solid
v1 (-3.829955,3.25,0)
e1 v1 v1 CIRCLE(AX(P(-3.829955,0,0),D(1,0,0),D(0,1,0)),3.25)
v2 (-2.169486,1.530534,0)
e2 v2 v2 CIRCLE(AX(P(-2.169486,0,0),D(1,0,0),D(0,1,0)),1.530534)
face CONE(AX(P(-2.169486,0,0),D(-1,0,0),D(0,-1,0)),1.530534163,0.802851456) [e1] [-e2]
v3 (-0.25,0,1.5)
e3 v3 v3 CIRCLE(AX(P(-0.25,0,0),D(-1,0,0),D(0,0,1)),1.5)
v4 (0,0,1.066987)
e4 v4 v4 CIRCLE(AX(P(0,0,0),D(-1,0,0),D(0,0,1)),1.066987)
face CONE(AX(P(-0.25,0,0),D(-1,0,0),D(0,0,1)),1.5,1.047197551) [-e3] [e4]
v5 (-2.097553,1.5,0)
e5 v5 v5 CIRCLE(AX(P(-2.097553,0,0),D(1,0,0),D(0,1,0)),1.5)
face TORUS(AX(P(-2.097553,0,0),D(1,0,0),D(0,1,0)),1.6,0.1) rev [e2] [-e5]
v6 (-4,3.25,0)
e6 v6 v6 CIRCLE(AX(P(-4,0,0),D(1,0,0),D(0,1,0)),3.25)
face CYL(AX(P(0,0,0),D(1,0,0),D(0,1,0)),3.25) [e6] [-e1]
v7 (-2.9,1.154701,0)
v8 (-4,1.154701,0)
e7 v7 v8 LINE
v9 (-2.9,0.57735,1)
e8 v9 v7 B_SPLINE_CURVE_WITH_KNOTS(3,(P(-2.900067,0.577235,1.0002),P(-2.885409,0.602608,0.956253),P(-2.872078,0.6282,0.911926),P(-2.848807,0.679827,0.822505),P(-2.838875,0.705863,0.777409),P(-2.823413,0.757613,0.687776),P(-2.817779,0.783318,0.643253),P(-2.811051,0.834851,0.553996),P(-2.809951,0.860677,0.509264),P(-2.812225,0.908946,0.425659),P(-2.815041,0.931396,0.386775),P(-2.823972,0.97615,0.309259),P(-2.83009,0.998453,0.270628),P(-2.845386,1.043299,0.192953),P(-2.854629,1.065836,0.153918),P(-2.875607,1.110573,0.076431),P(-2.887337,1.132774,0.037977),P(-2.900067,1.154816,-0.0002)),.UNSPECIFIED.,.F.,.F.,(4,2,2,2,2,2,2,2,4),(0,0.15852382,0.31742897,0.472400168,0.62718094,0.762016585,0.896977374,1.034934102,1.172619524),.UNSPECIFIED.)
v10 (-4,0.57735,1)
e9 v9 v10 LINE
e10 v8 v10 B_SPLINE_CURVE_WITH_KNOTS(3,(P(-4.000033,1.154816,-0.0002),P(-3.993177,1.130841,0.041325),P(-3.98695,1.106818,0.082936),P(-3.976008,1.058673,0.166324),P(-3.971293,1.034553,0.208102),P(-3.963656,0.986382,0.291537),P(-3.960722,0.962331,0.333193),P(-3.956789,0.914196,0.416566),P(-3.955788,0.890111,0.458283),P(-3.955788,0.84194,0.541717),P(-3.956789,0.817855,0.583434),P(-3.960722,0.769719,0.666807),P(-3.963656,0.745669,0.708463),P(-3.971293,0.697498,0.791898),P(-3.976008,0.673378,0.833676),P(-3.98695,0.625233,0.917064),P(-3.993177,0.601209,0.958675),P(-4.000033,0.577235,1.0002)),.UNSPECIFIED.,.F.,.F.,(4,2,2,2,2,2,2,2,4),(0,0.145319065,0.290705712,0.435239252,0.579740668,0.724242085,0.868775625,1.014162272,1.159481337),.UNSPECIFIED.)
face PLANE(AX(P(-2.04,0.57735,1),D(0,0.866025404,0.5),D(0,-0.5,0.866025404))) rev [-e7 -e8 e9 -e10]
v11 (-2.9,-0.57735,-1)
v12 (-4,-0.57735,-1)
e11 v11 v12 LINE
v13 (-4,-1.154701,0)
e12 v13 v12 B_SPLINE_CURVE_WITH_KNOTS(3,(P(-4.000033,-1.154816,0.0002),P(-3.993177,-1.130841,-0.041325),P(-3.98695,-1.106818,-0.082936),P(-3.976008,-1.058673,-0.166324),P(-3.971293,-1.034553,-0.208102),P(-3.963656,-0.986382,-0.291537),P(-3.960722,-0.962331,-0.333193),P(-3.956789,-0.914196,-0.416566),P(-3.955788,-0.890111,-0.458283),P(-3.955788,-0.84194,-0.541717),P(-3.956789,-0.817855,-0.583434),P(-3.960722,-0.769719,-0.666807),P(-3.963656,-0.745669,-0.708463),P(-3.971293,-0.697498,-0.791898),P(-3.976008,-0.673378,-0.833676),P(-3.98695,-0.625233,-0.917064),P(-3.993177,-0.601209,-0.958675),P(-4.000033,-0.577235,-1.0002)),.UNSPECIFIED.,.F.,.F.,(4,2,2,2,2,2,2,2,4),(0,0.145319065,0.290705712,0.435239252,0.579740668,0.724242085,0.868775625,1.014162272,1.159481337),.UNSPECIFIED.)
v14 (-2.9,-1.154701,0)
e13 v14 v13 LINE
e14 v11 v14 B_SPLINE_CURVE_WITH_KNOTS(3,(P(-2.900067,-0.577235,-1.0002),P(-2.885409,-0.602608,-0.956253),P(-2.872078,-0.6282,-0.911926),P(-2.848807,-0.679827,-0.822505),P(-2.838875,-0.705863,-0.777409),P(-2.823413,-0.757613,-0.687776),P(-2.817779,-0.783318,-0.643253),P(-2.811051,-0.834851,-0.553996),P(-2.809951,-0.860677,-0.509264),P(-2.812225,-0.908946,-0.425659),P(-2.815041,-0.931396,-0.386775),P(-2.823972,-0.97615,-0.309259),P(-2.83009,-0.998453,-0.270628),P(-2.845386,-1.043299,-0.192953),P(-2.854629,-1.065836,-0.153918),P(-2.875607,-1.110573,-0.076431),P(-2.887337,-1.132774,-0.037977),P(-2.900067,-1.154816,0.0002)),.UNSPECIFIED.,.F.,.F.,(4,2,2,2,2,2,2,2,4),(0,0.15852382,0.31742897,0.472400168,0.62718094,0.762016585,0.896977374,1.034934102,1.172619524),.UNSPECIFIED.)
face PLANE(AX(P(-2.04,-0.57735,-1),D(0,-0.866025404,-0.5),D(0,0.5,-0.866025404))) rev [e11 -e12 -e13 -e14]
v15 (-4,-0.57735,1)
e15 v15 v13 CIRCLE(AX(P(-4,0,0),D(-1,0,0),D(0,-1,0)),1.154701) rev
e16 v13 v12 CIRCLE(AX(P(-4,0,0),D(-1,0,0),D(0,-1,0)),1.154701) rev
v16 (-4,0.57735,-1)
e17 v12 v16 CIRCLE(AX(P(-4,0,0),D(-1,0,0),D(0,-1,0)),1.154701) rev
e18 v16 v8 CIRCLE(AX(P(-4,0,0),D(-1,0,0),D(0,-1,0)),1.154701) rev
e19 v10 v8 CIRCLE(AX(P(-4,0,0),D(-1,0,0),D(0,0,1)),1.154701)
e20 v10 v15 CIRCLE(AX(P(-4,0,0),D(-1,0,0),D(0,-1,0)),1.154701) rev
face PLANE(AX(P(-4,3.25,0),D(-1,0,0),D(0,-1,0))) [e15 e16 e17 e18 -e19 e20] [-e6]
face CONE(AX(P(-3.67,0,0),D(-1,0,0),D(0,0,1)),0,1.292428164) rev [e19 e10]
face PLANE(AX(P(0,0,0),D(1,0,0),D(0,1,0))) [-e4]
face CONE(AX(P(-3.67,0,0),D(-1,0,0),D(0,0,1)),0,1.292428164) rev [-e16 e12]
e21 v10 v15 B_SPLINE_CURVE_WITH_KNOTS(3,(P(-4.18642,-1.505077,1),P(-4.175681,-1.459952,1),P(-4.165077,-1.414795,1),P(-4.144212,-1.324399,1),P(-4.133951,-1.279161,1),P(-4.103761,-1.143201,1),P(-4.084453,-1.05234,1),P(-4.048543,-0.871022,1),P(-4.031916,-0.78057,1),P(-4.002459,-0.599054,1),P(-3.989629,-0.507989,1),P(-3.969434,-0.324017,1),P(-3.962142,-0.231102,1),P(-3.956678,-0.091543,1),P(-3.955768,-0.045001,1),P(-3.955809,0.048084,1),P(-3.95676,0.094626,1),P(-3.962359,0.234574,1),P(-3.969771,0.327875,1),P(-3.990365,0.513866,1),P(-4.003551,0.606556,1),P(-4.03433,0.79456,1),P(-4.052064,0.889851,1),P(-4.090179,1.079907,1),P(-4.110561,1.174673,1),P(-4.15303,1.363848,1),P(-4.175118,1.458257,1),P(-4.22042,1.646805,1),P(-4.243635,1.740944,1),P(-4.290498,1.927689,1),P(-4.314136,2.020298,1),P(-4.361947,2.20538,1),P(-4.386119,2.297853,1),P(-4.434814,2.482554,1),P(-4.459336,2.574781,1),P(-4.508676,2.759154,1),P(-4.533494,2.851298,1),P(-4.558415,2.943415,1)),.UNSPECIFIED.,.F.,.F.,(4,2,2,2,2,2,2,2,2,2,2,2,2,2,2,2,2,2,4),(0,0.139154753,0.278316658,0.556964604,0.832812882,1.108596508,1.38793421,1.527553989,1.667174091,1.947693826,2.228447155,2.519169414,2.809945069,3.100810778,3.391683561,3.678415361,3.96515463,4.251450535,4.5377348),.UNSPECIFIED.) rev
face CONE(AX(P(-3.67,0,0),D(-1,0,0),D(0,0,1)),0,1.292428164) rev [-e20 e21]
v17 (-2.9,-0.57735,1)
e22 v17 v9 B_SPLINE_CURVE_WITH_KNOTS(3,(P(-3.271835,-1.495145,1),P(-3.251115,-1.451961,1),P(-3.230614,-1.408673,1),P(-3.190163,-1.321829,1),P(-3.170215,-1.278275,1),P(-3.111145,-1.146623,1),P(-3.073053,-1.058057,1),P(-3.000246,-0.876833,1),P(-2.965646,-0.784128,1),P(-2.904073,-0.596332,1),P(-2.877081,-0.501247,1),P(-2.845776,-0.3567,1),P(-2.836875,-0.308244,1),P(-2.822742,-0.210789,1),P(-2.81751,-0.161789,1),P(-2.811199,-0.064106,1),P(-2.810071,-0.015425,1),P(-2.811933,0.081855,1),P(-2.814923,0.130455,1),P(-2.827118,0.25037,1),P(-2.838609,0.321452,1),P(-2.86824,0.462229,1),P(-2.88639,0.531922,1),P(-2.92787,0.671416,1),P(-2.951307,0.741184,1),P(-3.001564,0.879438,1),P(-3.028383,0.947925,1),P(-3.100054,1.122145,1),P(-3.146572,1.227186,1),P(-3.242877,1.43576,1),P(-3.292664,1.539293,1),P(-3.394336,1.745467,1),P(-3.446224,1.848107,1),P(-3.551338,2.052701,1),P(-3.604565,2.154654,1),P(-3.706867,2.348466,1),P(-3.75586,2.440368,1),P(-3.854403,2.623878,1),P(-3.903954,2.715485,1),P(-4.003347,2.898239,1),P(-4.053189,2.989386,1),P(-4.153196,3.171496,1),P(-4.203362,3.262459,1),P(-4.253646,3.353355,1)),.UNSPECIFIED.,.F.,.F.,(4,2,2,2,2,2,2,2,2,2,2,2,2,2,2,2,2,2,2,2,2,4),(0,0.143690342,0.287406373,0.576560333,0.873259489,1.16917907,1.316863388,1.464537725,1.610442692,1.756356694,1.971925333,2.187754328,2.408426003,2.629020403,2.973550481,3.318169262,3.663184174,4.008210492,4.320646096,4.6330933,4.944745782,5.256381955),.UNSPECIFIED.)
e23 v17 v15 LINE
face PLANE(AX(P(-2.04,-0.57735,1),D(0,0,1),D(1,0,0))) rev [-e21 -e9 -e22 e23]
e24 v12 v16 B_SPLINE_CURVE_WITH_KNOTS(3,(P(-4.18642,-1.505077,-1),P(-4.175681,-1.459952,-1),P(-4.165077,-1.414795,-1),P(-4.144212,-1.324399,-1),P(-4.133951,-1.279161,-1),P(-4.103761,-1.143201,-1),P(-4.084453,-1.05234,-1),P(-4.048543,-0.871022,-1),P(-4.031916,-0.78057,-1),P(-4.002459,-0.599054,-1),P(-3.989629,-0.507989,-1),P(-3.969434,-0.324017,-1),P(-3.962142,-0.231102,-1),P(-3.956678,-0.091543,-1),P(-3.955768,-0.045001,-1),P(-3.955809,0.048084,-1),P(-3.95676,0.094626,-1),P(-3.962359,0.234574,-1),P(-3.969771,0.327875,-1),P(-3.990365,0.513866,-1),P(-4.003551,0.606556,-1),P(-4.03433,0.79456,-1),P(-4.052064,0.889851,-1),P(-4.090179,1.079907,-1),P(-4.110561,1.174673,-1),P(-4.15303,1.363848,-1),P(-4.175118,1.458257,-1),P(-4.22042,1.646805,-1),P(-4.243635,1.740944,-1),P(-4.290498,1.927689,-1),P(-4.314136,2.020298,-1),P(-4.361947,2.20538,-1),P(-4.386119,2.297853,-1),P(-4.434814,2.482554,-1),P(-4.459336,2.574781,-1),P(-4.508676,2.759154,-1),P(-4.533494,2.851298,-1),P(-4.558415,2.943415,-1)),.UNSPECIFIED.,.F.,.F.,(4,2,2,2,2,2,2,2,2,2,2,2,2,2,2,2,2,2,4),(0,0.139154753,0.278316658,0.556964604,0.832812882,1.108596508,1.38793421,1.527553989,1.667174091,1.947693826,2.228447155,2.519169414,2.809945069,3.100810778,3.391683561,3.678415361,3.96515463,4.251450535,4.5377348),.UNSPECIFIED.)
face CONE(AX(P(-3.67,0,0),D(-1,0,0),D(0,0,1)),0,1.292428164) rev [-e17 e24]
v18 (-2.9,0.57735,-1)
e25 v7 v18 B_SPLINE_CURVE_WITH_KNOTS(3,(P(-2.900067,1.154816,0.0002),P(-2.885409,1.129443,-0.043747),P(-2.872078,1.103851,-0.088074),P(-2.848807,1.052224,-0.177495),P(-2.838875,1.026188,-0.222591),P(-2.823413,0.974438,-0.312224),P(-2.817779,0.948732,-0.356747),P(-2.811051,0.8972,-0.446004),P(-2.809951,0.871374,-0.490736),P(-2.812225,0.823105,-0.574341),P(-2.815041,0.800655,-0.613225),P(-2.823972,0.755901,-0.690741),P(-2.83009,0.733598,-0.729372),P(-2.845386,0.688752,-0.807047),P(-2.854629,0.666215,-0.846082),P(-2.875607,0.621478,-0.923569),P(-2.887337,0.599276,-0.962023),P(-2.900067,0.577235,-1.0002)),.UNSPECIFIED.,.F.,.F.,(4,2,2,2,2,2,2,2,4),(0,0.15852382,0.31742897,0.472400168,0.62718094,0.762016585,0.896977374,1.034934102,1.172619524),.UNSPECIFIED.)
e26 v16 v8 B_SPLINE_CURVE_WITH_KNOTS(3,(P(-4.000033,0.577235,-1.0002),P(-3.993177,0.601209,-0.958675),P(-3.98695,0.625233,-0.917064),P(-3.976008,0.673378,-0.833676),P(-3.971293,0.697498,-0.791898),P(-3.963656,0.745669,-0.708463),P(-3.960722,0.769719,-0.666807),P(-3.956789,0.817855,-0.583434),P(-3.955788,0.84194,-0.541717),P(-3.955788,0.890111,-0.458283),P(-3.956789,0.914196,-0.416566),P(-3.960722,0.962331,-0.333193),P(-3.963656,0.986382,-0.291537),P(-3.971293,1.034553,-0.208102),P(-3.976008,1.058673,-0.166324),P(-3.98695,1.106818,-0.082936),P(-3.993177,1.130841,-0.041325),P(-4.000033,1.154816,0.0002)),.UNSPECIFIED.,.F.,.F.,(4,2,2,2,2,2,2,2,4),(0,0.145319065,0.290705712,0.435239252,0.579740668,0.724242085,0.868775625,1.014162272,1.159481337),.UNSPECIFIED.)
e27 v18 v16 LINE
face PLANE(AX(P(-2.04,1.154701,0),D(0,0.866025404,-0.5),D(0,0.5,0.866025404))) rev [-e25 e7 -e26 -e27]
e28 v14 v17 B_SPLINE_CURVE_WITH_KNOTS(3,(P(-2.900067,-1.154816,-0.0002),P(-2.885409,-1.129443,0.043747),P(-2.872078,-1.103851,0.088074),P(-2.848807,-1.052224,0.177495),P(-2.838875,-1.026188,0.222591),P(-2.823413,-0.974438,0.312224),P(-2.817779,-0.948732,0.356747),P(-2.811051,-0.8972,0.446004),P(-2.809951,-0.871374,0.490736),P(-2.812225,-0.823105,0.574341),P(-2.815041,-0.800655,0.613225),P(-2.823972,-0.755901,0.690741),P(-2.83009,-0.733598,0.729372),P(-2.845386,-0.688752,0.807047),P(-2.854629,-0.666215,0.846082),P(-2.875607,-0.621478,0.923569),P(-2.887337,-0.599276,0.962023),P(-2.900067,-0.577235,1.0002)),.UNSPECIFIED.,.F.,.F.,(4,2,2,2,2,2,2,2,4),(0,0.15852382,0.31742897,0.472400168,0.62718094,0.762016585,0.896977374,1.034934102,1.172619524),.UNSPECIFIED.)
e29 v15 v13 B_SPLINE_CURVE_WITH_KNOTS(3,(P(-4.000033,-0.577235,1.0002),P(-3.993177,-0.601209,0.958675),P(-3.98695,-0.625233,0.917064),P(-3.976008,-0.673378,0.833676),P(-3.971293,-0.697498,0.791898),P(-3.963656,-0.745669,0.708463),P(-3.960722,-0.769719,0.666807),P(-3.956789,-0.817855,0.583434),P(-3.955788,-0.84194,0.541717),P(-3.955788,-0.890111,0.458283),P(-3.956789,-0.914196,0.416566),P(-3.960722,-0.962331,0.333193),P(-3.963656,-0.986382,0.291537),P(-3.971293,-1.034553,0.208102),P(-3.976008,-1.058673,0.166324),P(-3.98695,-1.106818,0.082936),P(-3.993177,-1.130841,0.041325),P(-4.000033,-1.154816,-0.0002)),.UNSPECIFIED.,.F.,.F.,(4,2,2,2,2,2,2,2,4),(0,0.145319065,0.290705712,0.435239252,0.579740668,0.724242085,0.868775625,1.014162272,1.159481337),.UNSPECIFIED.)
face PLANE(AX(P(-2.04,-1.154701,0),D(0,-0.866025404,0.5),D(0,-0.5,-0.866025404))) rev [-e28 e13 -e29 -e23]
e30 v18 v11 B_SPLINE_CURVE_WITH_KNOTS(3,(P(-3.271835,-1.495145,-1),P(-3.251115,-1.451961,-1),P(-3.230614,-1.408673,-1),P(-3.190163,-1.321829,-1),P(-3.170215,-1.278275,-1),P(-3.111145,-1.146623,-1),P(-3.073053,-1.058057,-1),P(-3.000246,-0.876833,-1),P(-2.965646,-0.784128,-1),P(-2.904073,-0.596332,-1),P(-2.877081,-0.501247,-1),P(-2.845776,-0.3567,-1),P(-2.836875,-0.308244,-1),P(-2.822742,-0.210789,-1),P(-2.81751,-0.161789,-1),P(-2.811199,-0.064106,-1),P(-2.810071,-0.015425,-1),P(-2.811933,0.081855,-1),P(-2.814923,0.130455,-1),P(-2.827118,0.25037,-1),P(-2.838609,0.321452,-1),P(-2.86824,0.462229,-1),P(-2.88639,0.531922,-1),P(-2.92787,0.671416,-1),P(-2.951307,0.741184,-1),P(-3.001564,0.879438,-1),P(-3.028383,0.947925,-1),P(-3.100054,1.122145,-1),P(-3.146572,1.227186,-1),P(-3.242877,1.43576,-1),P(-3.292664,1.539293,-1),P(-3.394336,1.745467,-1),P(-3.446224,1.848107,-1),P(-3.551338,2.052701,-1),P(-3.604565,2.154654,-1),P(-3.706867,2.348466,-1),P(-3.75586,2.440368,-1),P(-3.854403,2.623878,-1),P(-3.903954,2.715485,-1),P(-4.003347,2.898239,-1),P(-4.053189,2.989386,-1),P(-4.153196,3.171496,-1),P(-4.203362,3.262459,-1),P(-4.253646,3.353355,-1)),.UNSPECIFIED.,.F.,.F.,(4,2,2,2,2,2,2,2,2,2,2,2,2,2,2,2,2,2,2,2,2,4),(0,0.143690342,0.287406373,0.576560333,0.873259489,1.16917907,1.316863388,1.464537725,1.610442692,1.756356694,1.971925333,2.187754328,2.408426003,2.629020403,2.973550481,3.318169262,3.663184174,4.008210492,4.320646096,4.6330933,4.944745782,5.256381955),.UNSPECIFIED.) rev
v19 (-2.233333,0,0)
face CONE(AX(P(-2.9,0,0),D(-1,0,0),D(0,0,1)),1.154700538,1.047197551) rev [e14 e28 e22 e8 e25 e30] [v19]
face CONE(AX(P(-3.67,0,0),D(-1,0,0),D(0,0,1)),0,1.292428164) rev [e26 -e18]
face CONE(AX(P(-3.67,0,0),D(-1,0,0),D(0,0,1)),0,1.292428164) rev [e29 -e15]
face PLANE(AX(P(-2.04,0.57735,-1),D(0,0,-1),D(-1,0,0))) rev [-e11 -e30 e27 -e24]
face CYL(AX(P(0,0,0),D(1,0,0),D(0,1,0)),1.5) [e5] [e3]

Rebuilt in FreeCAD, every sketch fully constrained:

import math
import FreeCAD as App
import Part
import Sketcher

V = App.Vector
Q = App.Units.Quantity

doc = App.newDocument("Part")
body = doc.addObject("PartDesign::Body", "Body")

sketch1 = body.newObject("Sketcher::SketchObject", "Sketch")
sketch1.AttachmentSupport = (doc.getObject("XY_Plane"), [""])
sketch1.MapMode = "FlatFace"
sketch1.addGeometry(Part.LineSegment(V(0, 1.5, 0), V(-2.097553, 1.5, 0)), False)
sketch1.addGeometry(Part.ArcOfCircle(Part.Circle(V(-2.097553, 1.6, 0), V(0, 0, 1), 0.1), math.radians(-135.999999), math.radians(-90.000001)), False)
sketch1.addGeometry(Part.LineSegment(V(-2.169486, 1.530534, 0), V(-3.829955, 3.25, 0)), False)
sketch1.addGeometry(Part.LineSegment(V(-3.829955, 3.25, 0), V(-4, 3.25, 0)), False)
sketch1.addGeometry(Part.LineSegment(V(-4, 3.25, 0), V(-4, 0, 0)), False)
sketch1.addGeometry(Part.LineSegment(V(-4, 0, 0), V(0, 0, 0)), False)
sketch1.addGeometry(Part.LineSegment(V(0, 0, 0), V(0, 1.5, 0)), False)
sketch1.addConstraint(Sketcher.Constraint("Tangent", 0, 2, 1, 2))
sketch1.addConstraint(Sketcher.Constraint("Tangent", 1, 1, 2, 1))
sketch1.addConstraint(Sketcher.Constraint("Coincident", 2, 2, 3, 1))
sketch1.addConstraint(Sketcher.Constraint("Coincident", 3, 2, 4, 1))
sketch1.addConstraint(Sketcher.Constraint("Coincident", 4, 2, 5, 1))
sketch1.addConstraint(Sketcher.Constraint("Coincident", 5, 2, 6, 1))
sketch1.addConstraint(Sketcher.Constraint("Coincident", 6, 2, 0, 1))
sketch1.addConstraint(Sketcher.Constraint("Horizontal", 0))
sketch1.addConstraint(Sketcher.Constraint("Horizontal", 3))
sketch1.addConstraint(Sketcher.Constraint("Vertical", 4))
sketch1.addConstraint(Sketcher.Constraint("Horizontal", 5))
sketch1.addConstraint(Sketcher.Constraint("Vertical", 6))
sketch1.addConstraint(Sketcher.Constraint("Coincident", 5, 2, -1, 1))
sketch1.addConstraint(Sketcher.Constraint("Radius", 1, 0.1))
sketch1.addConstraint(Sketcher.Constraint("DistanceX", 5, 1, 5, 2, 4.0))
sketch1.addConstraint(Sketcher.Constraint("Angle", 2, Q("134 deg")))
sketch1.addConstraint(Sketcher.Constraint("DistanceY", 6, 1, 6, 2, 1.5))
sketch1.addConstraint(Sketcher.Constraint("DistanceY", 4, 2, 4, 1, 3.25))
sketch1.addConstraint(Sketcher.Constraint("DistanceX", 0, 2, 0, 1, 2.097553))
revolution = body.newObject("PartDesign::Revolution", "Revolution")
revolution.Profile = sketch1
revolution.ReferenceAxis = (sketch1, ["H_Axis"])
revolution.Angle = 360

sketch2 = body.newObject("Sketcher::SketchObject", "Sketch001")
sketch2.AttachmentSupport = (doc.getObject("YZ_Plane"), [""])
sketch2.MapMode = "FlatFace"
sketch2.AttachmentOffset = App.Placement(V(0, 0, -4), App.Rotation())
sketch2.addGeometry(Part.LineSegment(V(1.154701, 0, 0), V(0.57735, -1, 0)), False)
sketch2.addGeometry(Part.LineSegment(V(0.57735, -1, 0), V(-0.57735, -1, 0)), False)
sketch2.addGeometry(Part.LineSegment(V(-0.57735, -1, 0), V(-1.154701, 0, 0)), False)
sketch2.addGeometry(Part.LineSegment(V(-1.154701, 0, 0), V(-0.57735, 1, 0)), False)
sketch2.addGeometry(Part.LineSegment(V(-0.57735, 1, 0), V(0.57735, 1, 0)), False)
sketch2.addGeometry(Part.LineSegment(V(0.57735, 1, 0), V(1.154701, 0, 0)), False)
sketch2.addConstraint(Sketcher.Constraint("Coincident", 0, 2, 1, 1))
sketch2.addConstraint(Sketcher.Constraint("Coincident", 1, 2, 2, 1))
sketch2.addConstraint(Sketcher.Constraint("Coincident", 2, 2, 3, 1))
sketch2.addConstraint(Sketcher.Constraint("Coincident", 3, 2, 4, 1))
sketch2.addConstraint(Sketcher.Constraint("Coincident", 4, 2, 5, 1))
sketch2.addConstraint(Sketcher.Constraint("Coincident", 5, 2, 0, 1))
sketch2.addConstraint(Sketcher.Constraint("Horizontal", 1))
sketch2.addConstraint(Sketcher.Constraint("Horizontal", 4))
sketch2.addConstraint(Sketcher.Constraint("Symmetric", 0, 2, 3, 2, -1, 1))
sketch2.addConstraint(Sketcher.Constraint("Symmetric", 2, 2, 5, 2, -1, 1))
sketch2.addConstraint(Sketcher.Constraint("PointOnObject", 2, 2, -1))
sketch2.addConstraint(Sketcher.Constraint("Parallel", 2, 5))
sketch2.addConstraint(Sketcher.Constraint("Vertical", 1, 2, 3, 2))
sketch2.addConstraint(Sketcher.Constraint("Angle", 0, Q("-120 deg")))
sketch2.addConstraint(Sketcher.Constraint("DistanceY", 0, 2, -1, 1, 1.0))
sketch2.addConstraint(Sketcher.Constraint("DistanceX", 1, 2, 1, 1, 1.154701))
pocket1 = body.newObject("PartDesign::Pocket", "Pocket")
pocket1.Profile = sketch2
pocket1.Length = 1.96
pocket1.Reversed = True

sketch3 = body.newObject("Sketcher::SketchObject", "Sketch002")
sketch3.AttachmentSupport = (doc.getObject("XY_Plane"), [""])
sketch3.MapMode = "FlatFace"
sketch3.addGeometry(Part.LineSegment(V(-2.9, 1.154701, 0), V(-2.233333, 0, 0)), False)
sketch3.addGeometry(Part.LineSegment(V(-2.233333, 0, 0), V(-1.74, 0, 0)), False)
sketch3.addGeometry(Part.LineSegment(V(-1.74, 0, 0), V(-1.74, 1.154701, 0)), False)
sketch3.addGeometry(Part.LineSegment(V(-1.74, 1.154701, 0), V(-2.9, 1.154701, 0)), False)
sketch3.addConstraint(Sketcher.Constraint("Coincident", 0, 2, 1, 1))
sketch3.addConstraint(Sketcher.Constraint("Coincident", 1, 2, 2, 1))
sketch3.addConstraint(Sketcher.Constraint("Coincident", 2, 2, 3, 1))
sketch3.addConstraint(Sketcher.Constraint("Coincident", 3, 2, 0, 1))
sketch3.addConstraint(Sketcher.Constraint("Horizontal", 1))
sketch3.addConstraint(Sketcher.Constraint("Vertical", 2))
sketch3.addConstraint(Sketcher.Constraint("Horizontal", 3))
sketch3.addConstraint(Sketcher.Constraint("PointOnObject", 0, 2, -1))
sketch3.addConstraint(Sketcher.Constraint("Angle", 0, Q("-60 deg")))
sketch3.addConstraint(Sketcher.Constraint("DistanceX", 3, 2, 3, 1, 1.16))
sketch3.addConstraint(Sketcher.Constraint("DistanceX", 3, 2, -1, 1, 2.9))
sketch3.addConstraint(Sketcher.Constraint("DistanceY", 2, 1, 2, 2, 1.154701))
revolution2 = body.newObject("PartDesign::Revolution", "Revolution001")
revolution2.Profile = sketch3
revolution2.ReferenceAxis = (sketch3, ["H_Axis"])
revolution2.Angle = 360

sketch4 = body.newObject("Sketcher::SketchObject", "Sketch003")
sketch4.AttachmentSupport = (doc.getObject("XY_Plane"), [""])
sketch4.MapMode = "FlatFace"
sketch4.addGeometry(Part.LineSegment(V(-4, 1.154701, 0), V(-4, 0, 0)), False)
sketch4.addGeometry(Part.LineSegment(V(-4, 0, 0), V(-3.67, 0, 0)), False)
sketch4.addGeometry(Part.LineSegment(V(-3.67, 0, 0), V(-4, 1.154701, 0)), False)
sketch4.addConstraint(Sketcher.Constraint("Coincident", 0, 2, 1, 1))
sketch4.addConstraint(Sketcher.Constraint("Coincident", 1, 2, 2, 1))
sketch4.addConstraint(Sketcher.Constraint("Coincident", 2, 2, 0, 1))
sketch4.addConstraint(Sketcher.Constraint("Vertical", 0))
sketch4.addConstraint(Sketcher.Constraint("Horizontal", 1))
sketch4.addConstraint(Sketcher.Constraint("PointOnObject", 0, 2, -1))
sketch4.addConstraint(Sketcher.Constraint("DistanceX", 0, 2, -1, 1, 4.0))
sketch4.addConstraint(Sketcher.Constraint("DistanceX", 1, 1, 1, 2, 0.33))
sketch4.addConstraint(Sketcher.Constraint("DistanceY", 0, 2, 0, 1, 1.154701))
groove = body.newObject("PartDesign::Groove", "Groove")
groove.Profile = sketch4
groove.ReferenceAxis = (sketch4, ["H_Axis"])
groove.Angle = 360

sketch5 = body.newObject("Sketcher::SketchObject", "Sketch004")
sketch5.AttachmentSupport = (doc.getObject("XY_Plane"), [""])
sketch5.MapMode = "FlatFace"
sketch5.addGeometry(Part.LineSegment(V(-0.25, 1.5, 0), V(0, 1.066987, 0)), False)
sketch5.addGeometry(Part.LineSegment(V(0, 1.066987, 0), V(0.25, 1.5, 0)), False)
sketch5.addGeometry(Part.LineSegment(V(0.25, 1.5, 0), V(-0.25, 1.5, 0)), False)
sketch5.addConstraint(Sketcher.Constraint("Coincident", 0, 2, 1, 1))
sketch5.addConstraint(Sketcher.Constraint("Coincident", 1, 2, 2, 1))
sketch5.addConstraint(Sketcher.Constraint("Coincident", 2, 2, 0, 1))
sketch5.addConstraint(Sketcher.Constraint("Horizontal", 2))
sketch5.addConstraint(Sketcher.Constraint("PointOnObject", 0, 2, -2))
sketch5.addConstraint(Sketcher.Constraint("Equal", 0, 1))
sketch5.addConstraint(Sketcher.Constraint("Angle", 0, Q("-60 deg")))
sketch5.addConstraint(Sketcher.Constraint("DistanceX", 2, 2, 2, 1, 0.5))
sketch5.addConstraint(Sketcher.Constraint("DistanceY", -1, 1, 1, 2, 1.5))
groove2 = body.newObject("PartDesign::Groove", "Groove001")
groove2.Profile = sketch5
groove2.ReferenceAxis = (sketch5, ["H_Axis"])
groove2.Angle = 360

doc.recompute()
